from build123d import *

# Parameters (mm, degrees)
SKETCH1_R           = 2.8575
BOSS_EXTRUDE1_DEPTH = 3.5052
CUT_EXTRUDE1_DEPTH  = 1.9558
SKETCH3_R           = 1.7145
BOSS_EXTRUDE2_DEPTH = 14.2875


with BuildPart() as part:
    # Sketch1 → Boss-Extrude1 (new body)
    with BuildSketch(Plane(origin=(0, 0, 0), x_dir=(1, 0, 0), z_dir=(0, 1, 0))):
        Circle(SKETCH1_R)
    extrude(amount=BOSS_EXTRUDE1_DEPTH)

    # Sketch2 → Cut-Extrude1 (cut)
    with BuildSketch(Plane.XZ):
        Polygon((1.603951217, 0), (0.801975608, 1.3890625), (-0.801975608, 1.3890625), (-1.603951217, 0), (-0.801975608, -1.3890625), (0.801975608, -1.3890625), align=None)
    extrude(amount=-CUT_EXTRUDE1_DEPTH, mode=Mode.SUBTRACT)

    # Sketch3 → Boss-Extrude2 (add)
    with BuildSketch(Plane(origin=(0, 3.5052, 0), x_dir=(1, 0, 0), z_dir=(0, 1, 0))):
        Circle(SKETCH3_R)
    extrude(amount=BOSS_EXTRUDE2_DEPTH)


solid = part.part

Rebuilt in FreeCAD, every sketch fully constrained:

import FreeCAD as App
import Part
import Sketcher
from FreeCAD import Vector
Q = App.Units.Quantity


def add_polygon(sketch, points):
    """Adds a closed chain of lines whose ends are joined by coincident constraints."""
    first, n = sketch.GeometryCount, len(points)
    for a, b in zip(points, points[1:] + points[:1]):
        sketch.addGeometry(Part.LineSegment(App.Vector(*a, 0), App.Vector(*b, 0)), False)
    for i in range(n):
        sketch.addConstraint(Sketcher.Constraint("Coincident", first + i, 2, first + (i + 1) % n, 1))

doc = App.newDocument("Part")
body = doc.addObject("PartDesign::Body", "Body")

sketch1 = body.newObject("Sketcher::SketchObject", "Sketch")
sketch1.AttachmentSupport = (doc.getObject("XZ_Plane"), [""])
sketch1.MapMode = "FlatFace"
sketch1.addGeometry(Part.Circle(Vector(0, 0, 0), Vector(0, 0, 1), 2.8575), False)
sketch1.addConstraint([
    Sketcher.Constraint("Coincident", 0, 3, -1, 1),
    Sketcher.Constraint("Diameter", 0, Q("0.225 in")),
])
pad1 = body.newObject("PartDesign::Pad", "Pad")
pad1.Profile = sketch1
pad1.Length = Q("0.138 in")
pad1.Reversed = True

sketch2 = body.newObject("Sketcher::SketchObject", "Sketch001")
sketch2.AttachmentSupport = (doc.getObject("XZ_Plane"), [""])
sketch2.MapMode = "FlatFace"
add_polygon(sketch2, [(1.603951, 0), (0.801976, 1.389063), (-0.801976, 1.389063), (-1.603951, 0), (-0.801976, -1.389063), (0.801976, -1.389063)])
sketch2.addConstraint([
    Sketcher.Constraint("Horizontal", 1),
    Sketcher.Constraint("Horizontal", 4),
    Sketcher.Constraint("Symmetric", 0, 2, 3, 2, -1, 1),
    Sketcher.Constraint("Symmetric", 2, 2, 5, 2, -1, 1),
    Sketcher.Constraint("PointOnObject", 2, 2, -1),
    Sketcher.Constraint("Parallel", 2, 5),
    Sketcher.Constraint("Vertical", 1, 2, 3, 2),
    Sketcher.Constraint("Angle", 0, Q("120 deg")),
    Sketcher.Constraint("DistanceY", 3, 2, 1, 2, Q("0.109375 in")),
    Sketcher.Constraint("DistanceX", 1, 2, 1, 1, Q("1.603951 mm")),
])
pocket1 = body.newObject("PartDesign::Pocket", "Pocket")
pocket1.Profile = sketch2
pocket1.Length = Q("0.077 in")

sketch3 = body.newObject("Sketcher::SketchObject", "Sketch002")
sketch3.AttachmentSupport = (doc.getObject("XZ_Plane"), [""])
sketch3.MapMode = "FlatFace"
sketch3.AttachmentOffset = App.Placement(Vector(0, 0, -0.138 * 25.4), App.Rotation())
sketch3.addGeometry(Part.Circle(Vector(0, 0, 0), Vector(0, 0, 1), 1.7145), False)
sketch3.addConstraint([
    Sketcher.Constraint("Coincident", 0, 3, -1, 1),
    Sketcher.Constraint("Diameter", 0, Q("0.135 in")),
])
pad2 = body.newObject("PartDesign::Pad", "Pad001")
pad2.Profile = sketch3
pad2.Length = Q("0.5625 in")
pad2.Reversed = True

doc.recompute()
